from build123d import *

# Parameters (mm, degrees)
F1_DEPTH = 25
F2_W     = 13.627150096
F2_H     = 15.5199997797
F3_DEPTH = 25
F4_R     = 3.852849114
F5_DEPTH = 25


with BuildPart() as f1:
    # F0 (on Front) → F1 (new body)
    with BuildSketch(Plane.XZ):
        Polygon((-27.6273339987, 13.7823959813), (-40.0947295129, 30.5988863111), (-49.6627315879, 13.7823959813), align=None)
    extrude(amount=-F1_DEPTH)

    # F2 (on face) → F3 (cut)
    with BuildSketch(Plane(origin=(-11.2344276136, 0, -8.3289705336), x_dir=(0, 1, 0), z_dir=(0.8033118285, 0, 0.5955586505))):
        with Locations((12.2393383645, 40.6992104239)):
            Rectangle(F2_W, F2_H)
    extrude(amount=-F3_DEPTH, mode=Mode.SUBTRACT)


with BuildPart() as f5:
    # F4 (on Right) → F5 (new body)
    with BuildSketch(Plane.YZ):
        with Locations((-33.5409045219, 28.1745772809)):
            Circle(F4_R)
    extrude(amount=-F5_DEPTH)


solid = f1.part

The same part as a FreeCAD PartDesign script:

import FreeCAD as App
import Part
import Sketcher


def add_polygon(sketch, points):
    """Adds a closed chain of lines whose ends are joined by coincident constraints."""
    first, n = sketch.GeometryCount, len(points)
    for a, b in zip(points, points[1:] + points[:1]):
        sketch.addGeometry(Part.LineSegment(App.Vector(*a, 0), App.Vector(*b, 0)), False)
    for i in range(n):
        sketch.addConstraint(Sketcher.Constraint("Coincident", first + i, 2, first + (i + 1) % n, 1))

doc = App.newDocument("Part")
body = doc.addObject("PartDesign::Body", "Body")

sketch1 = doc.addObject("Sketcher::SketchObject", "Sketch")
body.addObject(sketch1)
sketch1.AttachmentSupport = (doc.XZ_Plane, [""])
sketch1.MapMode = "FlatFace"
add_polygon(sketch1, [(-28, 14), (-40, 31), (-50, 14)])
sketch1.addConstraint(Sketcher.Constraint("Horizontal", 2))
sketch1.addConstraint(Sketcher.Constraint("Distance", 0, 20.933951))
sketch1.addConstraint(Sketcher.Constraint("DistanceX", 2, 1, 2, 2, 22.035398))
sketch1.addConstraint(Sketcher.Constraint("DistanceX", 0, 2, -1, 1, 40.09473))
sketch1.addConstraint(Sketcher.Constraint("DistanceX", 1, 2, -1, 1, 49.662732))
sketch1.addConstraint(Sketcher.Constraint("DistanceY", -1, 1, 0, 2, 30.598886))
pad1 = doc.addObject("PartDesign::Pad", "Pad")
body.addObject(pad1)
pad1.Profile = sketch1
pad1.Length = 25
pad1.Reversed = True

sketch2 = doc.addObject("Sketcher::SketchObject", "Sketch001")
body.addObject(sketch2)
sketch2.Placement = App.Placement(App.Vector(-11.234428, 0, -8.328971), App.Rotation(App.Vector(0, 1, 0), App.Vector(-0.595558651, 0, 0.803311829), App.Vector(0.803311829, 0, 0.595558651), "ZXY"))
add_polygon(sketch2, [(5, 48), (5, 33), (19, 33), (19, 48)])
sketch2.addConstraint(Sketcher.Constraint("Vertical", 0))
sketch2.addConstraint(Sketcher.Constraint("Horizontal", 1))
sketch2.addConstraint(Sketcher.Constraint("Vertical", 2))
sketch2.addConstraint(Sketcher.Constraint("Horizontal", 3))
sketch2.addConstraint(Sketcher.Constraint("DistanceY", 0, 2, 0, 1, 15.52))
sketch2.addConstraint(Sketcher.Constraint("DistanceX", 1, 1, 1, 2, 13.62715))
sketch2.addConstraint(Sketcher.Constraint("DistanceY", -1, 1, 0, 2, 32.939211))
sketch2.addConstraint(Sketcher.Constraint("DistanceX", -1, 1, 0, 2, 5.425763))
pocket1 = doc.addObject("PartDesign::Pocket", "Pocket")
body.addObject(pocket1)
pocket1.Profile = sketch2
pocket1.Length = 25
body2 = doc.addObject("PartDesign::Body", "Body001")

sketch3 = doc.addObject("Sketcher::SketchObject", "Sketch002")
body2.addObject(sketch3)
sketch3.AttachmentSupport = (doc.getObject("YZ_Plane001"), [""])
sketch3.MapMode = "FlatFace"
sketch3.addGeometry(Part.Circle(App.Vector(-33.5, 28.2, 0), App.Vector(0, 0, 1), 3.9), False)
sketch3.addConstraint(Sketcher.Constraint("Diameter", 0, 7.705698))
sketch3.addConstraint(Sketcher.Constraint("DistanceX", 0, 3, -1, 1, 33.540905))
sketch3.addConstraint(Sketcher.Constraint("DistanceY", -1, 1, 0, 3, 28.174577))
pad2 = doc.addObject("PartDesign::Pad", "Pad001")
body2.addObject(pad2)
pad2.Profile = sketch3
pad2.Length = 25
pad2.Reversed = True
body2.Visibility = False

doc.recompute()
